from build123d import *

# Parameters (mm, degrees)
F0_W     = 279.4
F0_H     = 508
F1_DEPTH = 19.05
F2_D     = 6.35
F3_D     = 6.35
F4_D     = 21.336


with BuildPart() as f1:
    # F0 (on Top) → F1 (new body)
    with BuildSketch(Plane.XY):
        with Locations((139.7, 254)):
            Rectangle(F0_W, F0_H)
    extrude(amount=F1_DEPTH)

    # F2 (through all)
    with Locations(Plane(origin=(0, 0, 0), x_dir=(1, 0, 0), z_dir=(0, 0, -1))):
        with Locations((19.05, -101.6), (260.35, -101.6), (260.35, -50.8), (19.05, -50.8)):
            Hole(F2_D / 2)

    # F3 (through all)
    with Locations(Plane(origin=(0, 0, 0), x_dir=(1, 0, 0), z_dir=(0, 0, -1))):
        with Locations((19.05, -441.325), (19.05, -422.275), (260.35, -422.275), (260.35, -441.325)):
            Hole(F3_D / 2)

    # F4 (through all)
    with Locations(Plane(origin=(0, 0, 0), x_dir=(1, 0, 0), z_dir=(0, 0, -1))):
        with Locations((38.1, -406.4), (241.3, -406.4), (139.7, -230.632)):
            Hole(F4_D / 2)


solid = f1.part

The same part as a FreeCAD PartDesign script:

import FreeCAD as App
import Part
import Sketcher

V = App.Vector
Q = App.Units.Quantity

doc = App.newDocument("Part")
body = doc.addObject("PartDesign::Body", "Body")

sketch1 = body.newObject("Sketcher::SketchObject", "Sketch")
sketch1.AttachmentSupport = (doc.getObject("XY_Plane"), [""])
sketch1.MapMode = "FlatFace"
sketch1.addGeometry([
    Part.LineSegment(V(0, 508, 0), V(0, 0, 0)),
    Part.LineSegment(V(0, 0, 0), V(279, 0, 0)),
    Part.LineSegment(V(279, 0, 0), V(279, 508, 0)),
    Part.LineSegment(V(279, 508, 0), V(0, 508, 0)),
], False)
sketch1.addConstraint([
    Sketcher.Constraint("Coincident", 0, 2, 1, 1),
    Sketcher.Constraint("Coincident", 1, 2, 2, 1),
    Sketcher.Constraint("Coincident", 2, 2, 3, 1),
    Sketcher.Constraint("Coincident", 3, 2, 0, 1),
    Sketcher.Constraint("Vertical", 0),
    Sketcher.Constraint("Horizontal", 1),
    Sketcher.Constraint("Vertical", 2),
    Sketcher.Constraint("Horizontal", 3),
    Sketcher.Constraint("Coincident", 0, 2, -1, 1),
    Sketcher.Constraint("DistanceX", 1, 1, 1, 2, Q("11 in")),
    Sketcher.Constraint("DistanceY", 0, 2, 0, 1, Q("20 in")),
])
pad1 = body.newObject("PartDesign::Pad", "Pad")
pad1.Profile = sketch1
pad1.Length = Q("0.75 in")

sketch2 = body.newObject("Sketcher::SketchObject", "Sketch001")
sketch2.AttachmentSupport = (doc.getObject("XY_Plane"), [""])
sketch2.MapMode = "FlatFace"
sketch2.addGeometry([
    Part.Circle(V(19.1, 101.6, 0), V(0, 0, 1), 3.2),
    Part.Circle(V(260.4, 101.6, 0), V(0, 0, 1), 3.2),
    Part.Circle(V(260.4, 50.8, 0), V(0, 0, 1), 3.2),
    Part.Circle(V(19.1, 50.8, 0), V(0, 0, 1), 3.2),
], False)
sketch2.addConstraint([
    Sketcher.Constraint("Equal", 0, 1),
    Sketcher.Constraint("Equal", 1, 2),
    Sketcher.Constraint("Equal", 2, 3),
    Sketcher.Constraint("Horizontal", 0, 3, 1, 3),
    Sketcher.Constraint("Horizontal", 2, 3, 3, 3),
    Sketcher.Constraint("Vertical", 1, 3, 2, 3),
    Sketcher.Constraint("Vertical", 0, 3, 3, 3),
    Sketcher.Constraint("Diameter", 0, Q("0.25 in")),
    Sketcher.Constraint("DistanceY", -1, 1, 0, 3, Q("4 in")),
    Sketcher.Constraint("DistanceY", -1, 1, 2, 3, Q("2 in")),
    Sketcher.Constraint("DistanceX", 0, 3, 1, 3, Q("9.5 in")),
    Sketcher.Constraint("DistanceX", -1, 1, 0, 3, Q("0.75 in")),
])
doc.recompute()
hole = body.newObject("PartDesign::Hole", "Hole")
hole.Profile = sketch2
hole.ThreadType = "None"
hole.Diameter = Q("0.25 in")
hole.DepthType = "ThroughAll"
hole.Reversed = True

sketch3 = body.newObject("Sketcher::SketchObject", "Sketch002")
sketch3.AttachmentSupport = (doc.getObject("XY_Plane"), [""])
sketch3.MapMode = "FlatFace"
sketch3.addGeometry([
    Part.Circle(V(19.1, 441.3, 0), V(0, 0, 1), 3.2),
    Part.Circle(V(19.1, 422.3, 0), V(0, 0, 1), 3.2),
    Part.Circle(V(260.4, 422.3, 0), V(0, 0, 1), 3.2),
    Part.Circle(V(260.4, 441.3, 0), V(0, 0, 1), 3.2),
], False)
sketch3.addConstraint([
    Sketcher.Constraint("Equal", 0, 1),
    Sketcher.Constraint("Equal", 1, 2),
    Sketcher.Constraint("Equal", 2, 3),
    Sketcher.Constraint("Horizontal", 1, 3, 2, 3),
    Sketcher.Constraint("Horizontal", 0, 3, 3, 3),
    Sketcher.Constraint("Vertical", 0, 3, 1, 3),
    Sketcher.Constraint("Vertical", 2, 3, 3, 3),
    Sketcher.Constraint("Diameter", 0, Q("0.25 in")),
    Sketcher.Constraint("DistanceX", 1, 3, 2, 3, Q("9.5 in")),
    Sketcher.Constraint("DistanceX", -1, 1, 0, 3, Q("0.75 in")),
    Sketcher.Constraint("DistanceY", 1, 3, 0, 3, Q("0.75 in")),
    Sketcher.Constraint("DistanceY", -1, 1, 0, 3, Q("17.375 in")),
])
doc.recompute()
hole2 = body.newObject("PartDesign::Hole", "Hole001")
hole2.Profile = sketch3
hole2.ThreadType = "None"
hole2.Diameter = Q("0.25 in")
hole2.DepthType = "ThroughAll"
hole2.Reversed = True

sketch4 = body.newObject("Sketcher::SketchObject", "Sketch003")
sketch4.AttachmentSupport = (doc.getObject("XY_Plane"), [""])
sketch4.MapMode = "FlatFace"
sketch4.addGeometry([
    Part.Circle(V(38, 406, 0), V(0, 0, 1), 11),
    Part.Circle(V(241, 406, 0), V(0, 0, 1), 11),
    Part.Circle(V(140, 231, 0), V(0, 0, 1), 11),
], False)
sketch4.addConstraint([
    Sketcher.Constraint("Equal", 0, 1),
    Sketcher.Constraint("Equal", 1, 2),
    Sketcher.Constraint("Horizontal", 0, 3, 1, 3),
    Sketcher.Constraint("Diameter", 0, Q("0.84 in")),
    Sketcher.Constraint("DistanceY", -1, 1, 0, 3, Q("16 in")),
    Sketcher.Constraint("DistanceX", 0, 3, 1, 3, Q("8 in")),
    Sketcher.Constraint("DistanceX", 0, 3, 2, 3, Q("4 in")),
    Sketcher.Constraint("DistanceX", -1, 1, 0, 3, Q("1.5 in")),
    Sketcher.Constraint("DistanceY", -1, 1, 2, 3, Q("9.08 in")),
])
doc.recompute()
hole3 = body.newObject("PartDesign::Hole", "Hole002")
hole3.Profile = sketch4
hole3.ThreadType = "None"
hole3.Diameter = Q("0.84 in")
hole3.DepthType = "ThroughAll"
hole3.Reversed = True

doc.recompute()
